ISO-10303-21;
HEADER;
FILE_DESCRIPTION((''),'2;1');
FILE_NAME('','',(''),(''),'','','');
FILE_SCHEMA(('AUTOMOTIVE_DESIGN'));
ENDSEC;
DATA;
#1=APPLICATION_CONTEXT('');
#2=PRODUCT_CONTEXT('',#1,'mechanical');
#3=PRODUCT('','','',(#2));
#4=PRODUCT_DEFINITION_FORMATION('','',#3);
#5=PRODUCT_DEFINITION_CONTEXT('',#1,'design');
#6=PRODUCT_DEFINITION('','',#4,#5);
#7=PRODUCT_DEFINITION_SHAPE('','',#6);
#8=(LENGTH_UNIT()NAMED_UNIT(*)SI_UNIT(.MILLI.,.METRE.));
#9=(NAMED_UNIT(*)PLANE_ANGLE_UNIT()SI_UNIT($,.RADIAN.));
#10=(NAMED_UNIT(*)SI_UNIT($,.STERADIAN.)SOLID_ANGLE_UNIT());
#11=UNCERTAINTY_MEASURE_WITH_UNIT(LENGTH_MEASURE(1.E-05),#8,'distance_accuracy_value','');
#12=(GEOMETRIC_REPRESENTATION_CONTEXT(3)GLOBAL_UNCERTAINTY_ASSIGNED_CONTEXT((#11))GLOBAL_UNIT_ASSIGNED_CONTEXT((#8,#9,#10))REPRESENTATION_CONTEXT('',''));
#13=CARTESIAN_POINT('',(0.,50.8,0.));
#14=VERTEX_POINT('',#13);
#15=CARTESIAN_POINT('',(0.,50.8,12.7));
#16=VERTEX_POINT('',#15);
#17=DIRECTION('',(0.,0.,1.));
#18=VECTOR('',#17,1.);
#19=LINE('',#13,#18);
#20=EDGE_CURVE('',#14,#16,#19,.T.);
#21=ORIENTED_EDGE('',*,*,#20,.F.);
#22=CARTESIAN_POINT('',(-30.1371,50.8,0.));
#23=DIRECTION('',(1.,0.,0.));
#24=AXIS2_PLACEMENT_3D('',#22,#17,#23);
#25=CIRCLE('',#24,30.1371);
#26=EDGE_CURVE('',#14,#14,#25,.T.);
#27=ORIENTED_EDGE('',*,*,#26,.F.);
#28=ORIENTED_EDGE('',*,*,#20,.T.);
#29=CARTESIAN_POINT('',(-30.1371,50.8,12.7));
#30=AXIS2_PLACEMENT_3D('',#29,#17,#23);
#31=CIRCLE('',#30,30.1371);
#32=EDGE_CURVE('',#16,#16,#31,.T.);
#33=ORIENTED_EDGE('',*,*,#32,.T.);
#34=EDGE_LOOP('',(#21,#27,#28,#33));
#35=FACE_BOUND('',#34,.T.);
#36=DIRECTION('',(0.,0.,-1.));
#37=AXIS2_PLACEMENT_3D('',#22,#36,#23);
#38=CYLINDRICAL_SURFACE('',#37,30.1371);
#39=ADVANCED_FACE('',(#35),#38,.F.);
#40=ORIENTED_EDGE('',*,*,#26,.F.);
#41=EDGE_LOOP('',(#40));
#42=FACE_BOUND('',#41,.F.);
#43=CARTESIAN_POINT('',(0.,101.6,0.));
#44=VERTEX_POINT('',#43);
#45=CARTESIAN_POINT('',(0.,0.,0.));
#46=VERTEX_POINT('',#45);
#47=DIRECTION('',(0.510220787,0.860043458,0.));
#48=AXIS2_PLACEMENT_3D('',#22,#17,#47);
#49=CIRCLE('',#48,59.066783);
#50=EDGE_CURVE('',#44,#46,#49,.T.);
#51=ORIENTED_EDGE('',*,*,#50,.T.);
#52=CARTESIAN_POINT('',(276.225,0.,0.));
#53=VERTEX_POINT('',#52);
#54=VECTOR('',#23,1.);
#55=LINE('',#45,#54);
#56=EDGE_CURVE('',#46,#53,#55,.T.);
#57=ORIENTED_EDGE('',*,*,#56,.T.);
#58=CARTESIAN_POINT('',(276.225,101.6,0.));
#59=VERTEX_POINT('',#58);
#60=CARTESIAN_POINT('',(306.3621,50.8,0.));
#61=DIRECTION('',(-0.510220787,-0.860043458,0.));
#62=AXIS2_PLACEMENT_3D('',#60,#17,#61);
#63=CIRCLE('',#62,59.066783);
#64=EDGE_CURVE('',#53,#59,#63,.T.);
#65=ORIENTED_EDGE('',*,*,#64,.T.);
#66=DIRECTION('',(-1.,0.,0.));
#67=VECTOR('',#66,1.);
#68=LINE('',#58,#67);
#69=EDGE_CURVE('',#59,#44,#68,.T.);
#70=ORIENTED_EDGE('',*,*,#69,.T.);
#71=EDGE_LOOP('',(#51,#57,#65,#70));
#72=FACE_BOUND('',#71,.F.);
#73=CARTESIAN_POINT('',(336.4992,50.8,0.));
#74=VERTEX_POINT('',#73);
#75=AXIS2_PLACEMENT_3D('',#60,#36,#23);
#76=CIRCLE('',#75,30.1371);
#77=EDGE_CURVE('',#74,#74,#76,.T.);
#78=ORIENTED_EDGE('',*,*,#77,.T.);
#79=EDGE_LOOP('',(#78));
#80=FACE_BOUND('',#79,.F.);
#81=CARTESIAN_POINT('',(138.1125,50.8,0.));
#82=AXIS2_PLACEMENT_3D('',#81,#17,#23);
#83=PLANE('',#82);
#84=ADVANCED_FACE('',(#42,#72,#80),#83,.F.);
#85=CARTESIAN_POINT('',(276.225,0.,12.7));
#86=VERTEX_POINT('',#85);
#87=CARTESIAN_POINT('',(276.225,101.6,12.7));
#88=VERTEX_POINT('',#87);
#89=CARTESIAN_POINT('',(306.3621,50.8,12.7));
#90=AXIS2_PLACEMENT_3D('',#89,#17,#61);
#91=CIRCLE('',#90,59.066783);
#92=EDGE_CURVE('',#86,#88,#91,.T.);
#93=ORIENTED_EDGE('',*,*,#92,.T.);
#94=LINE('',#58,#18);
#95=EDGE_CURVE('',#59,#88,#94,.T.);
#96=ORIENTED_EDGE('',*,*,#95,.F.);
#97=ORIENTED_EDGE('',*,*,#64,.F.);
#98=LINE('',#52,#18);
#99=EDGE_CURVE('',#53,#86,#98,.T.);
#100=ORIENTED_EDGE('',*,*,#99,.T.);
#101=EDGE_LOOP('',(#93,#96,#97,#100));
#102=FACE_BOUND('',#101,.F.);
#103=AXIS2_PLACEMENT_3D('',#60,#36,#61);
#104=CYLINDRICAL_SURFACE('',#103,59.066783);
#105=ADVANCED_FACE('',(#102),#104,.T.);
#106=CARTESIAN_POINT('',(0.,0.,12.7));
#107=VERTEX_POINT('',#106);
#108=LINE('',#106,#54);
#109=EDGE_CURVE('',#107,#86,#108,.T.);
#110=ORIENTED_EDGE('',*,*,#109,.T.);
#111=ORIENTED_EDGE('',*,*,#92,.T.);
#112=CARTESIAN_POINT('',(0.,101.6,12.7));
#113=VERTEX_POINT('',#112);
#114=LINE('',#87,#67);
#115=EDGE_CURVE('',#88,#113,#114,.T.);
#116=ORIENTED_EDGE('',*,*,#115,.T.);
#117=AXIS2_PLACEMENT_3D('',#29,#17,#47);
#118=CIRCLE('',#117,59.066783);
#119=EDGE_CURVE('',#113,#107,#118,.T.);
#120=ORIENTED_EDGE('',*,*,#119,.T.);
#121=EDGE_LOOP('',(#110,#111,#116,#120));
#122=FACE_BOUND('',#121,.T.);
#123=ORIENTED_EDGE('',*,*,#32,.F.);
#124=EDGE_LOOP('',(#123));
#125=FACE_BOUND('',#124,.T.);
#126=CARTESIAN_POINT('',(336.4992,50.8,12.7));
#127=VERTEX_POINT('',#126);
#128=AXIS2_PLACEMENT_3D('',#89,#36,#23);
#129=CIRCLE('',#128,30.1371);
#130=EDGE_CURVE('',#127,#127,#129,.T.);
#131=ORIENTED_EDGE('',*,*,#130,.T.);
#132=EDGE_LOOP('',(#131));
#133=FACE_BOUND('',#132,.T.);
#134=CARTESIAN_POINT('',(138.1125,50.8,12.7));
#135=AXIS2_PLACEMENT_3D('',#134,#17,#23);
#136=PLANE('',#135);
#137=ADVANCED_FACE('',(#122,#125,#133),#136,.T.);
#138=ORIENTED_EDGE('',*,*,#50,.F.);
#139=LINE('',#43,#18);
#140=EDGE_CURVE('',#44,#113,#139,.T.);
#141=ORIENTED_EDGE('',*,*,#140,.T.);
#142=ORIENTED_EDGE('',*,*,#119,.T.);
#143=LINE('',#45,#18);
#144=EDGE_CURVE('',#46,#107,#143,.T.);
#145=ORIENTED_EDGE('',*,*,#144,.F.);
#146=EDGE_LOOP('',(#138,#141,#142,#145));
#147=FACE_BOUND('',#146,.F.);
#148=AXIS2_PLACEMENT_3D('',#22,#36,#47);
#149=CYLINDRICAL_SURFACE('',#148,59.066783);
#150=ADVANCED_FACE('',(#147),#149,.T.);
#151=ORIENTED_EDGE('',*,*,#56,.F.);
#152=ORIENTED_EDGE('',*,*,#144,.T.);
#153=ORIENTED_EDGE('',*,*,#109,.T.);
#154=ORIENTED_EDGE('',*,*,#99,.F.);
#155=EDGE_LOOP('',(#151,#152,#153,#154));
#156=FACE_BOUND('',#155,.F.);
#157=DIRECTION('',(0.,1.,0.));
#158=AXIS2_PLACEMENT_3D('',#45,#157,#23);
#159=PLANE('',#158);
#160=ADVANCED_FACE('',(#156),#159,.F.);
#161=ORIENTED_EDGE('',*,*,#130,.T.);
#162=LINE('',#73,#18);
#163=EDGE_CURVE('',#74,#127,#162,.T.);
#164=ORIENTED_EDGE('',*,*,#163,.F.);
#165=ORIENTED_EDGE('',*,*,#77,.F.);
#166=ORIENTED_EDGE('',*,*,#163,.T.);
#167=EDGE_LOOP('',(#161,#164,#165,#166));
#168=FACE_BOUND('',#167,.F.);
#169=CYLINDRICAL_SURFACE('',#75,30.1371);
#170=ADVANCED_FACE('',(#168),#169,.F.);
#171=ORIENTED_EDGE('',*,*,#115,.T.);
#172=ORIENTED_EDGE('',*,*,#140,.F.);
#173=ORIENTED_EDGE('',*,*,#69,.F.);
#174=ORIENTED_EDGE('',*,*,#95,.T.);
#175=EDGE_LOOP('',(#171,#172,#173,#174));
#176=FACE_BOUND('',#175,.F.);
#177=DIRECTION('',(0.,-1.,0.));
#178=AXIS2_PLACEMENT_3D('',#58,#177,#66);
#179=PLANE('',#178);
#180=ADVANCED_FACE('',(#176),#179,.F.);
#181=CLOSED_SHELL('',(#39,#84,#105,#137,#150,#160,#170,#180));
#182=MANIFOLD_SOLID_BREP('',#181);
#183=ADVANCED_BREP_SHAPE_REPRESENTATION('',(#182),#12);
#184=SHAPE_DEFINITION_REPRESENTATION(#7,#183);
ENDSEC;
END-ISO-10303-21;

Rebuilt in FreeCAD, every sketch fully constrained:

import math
import FreeCAD as App
import Part
import Sketcher
from FreeCAD import Vector
Q = App.Units.Quantity

doc = App.newDocument("Part")
body = doc.addObject("PartDesign::Body", "Body")

# Sketch on XY plane
sketch1 = doc.addObject("Sketcher::SketchObject", "Sketch")
body.addObject(sketch1)
sketch1.AttachmentSupport = (doc.XY_Plane, [""])
sketch1.MapMode = "FlatFace"
sketch1.addGeometry(Part.ArcOfCircle(Part.Circle(Vector(-30, 51, 0), Vector(0, 0, 1), 59), math.radians(59), math.radians(301)), False)
sketch1.addGeometry(Part.LineSegment(Vector(0, 0, 0), Vector(276, 0, 0)), False)
sketch1.addGeometry(Part.ArcOfCircle(Part.Circle(Vector(306, 51, 0), Vector(0, 0, 1), 59), math.radians(-121), math.radians(121)), False)
sketch1.addGeometry(Part.LineSegment(Vector(276, 102, 0), Vector(0, 102, 0)), False)
sketch1.addGeometry(Part.Circle(Vector(-30, 51, 0), Vector(0, 0, 1), 30), False)
sketch1.addGeometry(Part.Circle(Vector(306, 51, 0), Vector(0, 0, 1), 30), False)
sketch1.addConstraint(Sketcher.Constraint("Coincident", 0, 2, 1, 1))
sketch1.addConstraint(Sketcher.Constraint("Coincident", 1, 2, 2, 1))
sketch1.addConstraint(Sketcher.Constraint("Coincident", 2, 2, 3, 1))
sketch1.addConstraint(Sketcher.Constraint("Coincident", 3, 2, 0, 1))
sketch1.addConstraint(Sketcher.Constraint("Horizontal", 1))
sketch1.addConstraint(Sketcher.Constraint("Horizontal", 3))
sketch1.addConstraint(Sketcher.Constraint("Coincident", 0, 2, -1, 1))
sketch1.addConstraint(Sketcher.Constraint("Coincident", 4, 3, 0, 3))
sketch1.addConstraint(Sketcher.Constraint("Coincident", 5, 3, 2, 3))
sketch1.addConstraint(Sketcher.Constraint("Equal", 0, 2))
sketch1.addConstraint(Sketcher.Constraint("Equal", 4, 5))
sketch1.addConstraint(Sketcher.Constraint("PointOnObject", 3, 2, -2))
sketch1.addConstraint(Sketcher.Constraint("Horizontal", 0, 3, 2, 3))
sketch1.addConstraint(Sketcher.Constraint("Diameter", 4, Q("2.373 in")))
sketch1.addConstraint(Sketcher.Constraint("DistanceY", -1, 1, 0, 3, Q("2 in")))
sketch1.addConstraint(Sketcher.Constraint("DistanceX", 1, 1, 1, 2, Q("10.875 in")))
sketch1.addConstraint(Sketcher.Constraint("DistanceX", 0, 3, 2, 3, Q("13.248 in")))
pad1 = doc.addObject("PartDesign::Pad", "Pad")
body.addObject(pad1)
pad1.Profile = sketch1
pad1.Length = Q("0.5 in")

doc.recompute()
